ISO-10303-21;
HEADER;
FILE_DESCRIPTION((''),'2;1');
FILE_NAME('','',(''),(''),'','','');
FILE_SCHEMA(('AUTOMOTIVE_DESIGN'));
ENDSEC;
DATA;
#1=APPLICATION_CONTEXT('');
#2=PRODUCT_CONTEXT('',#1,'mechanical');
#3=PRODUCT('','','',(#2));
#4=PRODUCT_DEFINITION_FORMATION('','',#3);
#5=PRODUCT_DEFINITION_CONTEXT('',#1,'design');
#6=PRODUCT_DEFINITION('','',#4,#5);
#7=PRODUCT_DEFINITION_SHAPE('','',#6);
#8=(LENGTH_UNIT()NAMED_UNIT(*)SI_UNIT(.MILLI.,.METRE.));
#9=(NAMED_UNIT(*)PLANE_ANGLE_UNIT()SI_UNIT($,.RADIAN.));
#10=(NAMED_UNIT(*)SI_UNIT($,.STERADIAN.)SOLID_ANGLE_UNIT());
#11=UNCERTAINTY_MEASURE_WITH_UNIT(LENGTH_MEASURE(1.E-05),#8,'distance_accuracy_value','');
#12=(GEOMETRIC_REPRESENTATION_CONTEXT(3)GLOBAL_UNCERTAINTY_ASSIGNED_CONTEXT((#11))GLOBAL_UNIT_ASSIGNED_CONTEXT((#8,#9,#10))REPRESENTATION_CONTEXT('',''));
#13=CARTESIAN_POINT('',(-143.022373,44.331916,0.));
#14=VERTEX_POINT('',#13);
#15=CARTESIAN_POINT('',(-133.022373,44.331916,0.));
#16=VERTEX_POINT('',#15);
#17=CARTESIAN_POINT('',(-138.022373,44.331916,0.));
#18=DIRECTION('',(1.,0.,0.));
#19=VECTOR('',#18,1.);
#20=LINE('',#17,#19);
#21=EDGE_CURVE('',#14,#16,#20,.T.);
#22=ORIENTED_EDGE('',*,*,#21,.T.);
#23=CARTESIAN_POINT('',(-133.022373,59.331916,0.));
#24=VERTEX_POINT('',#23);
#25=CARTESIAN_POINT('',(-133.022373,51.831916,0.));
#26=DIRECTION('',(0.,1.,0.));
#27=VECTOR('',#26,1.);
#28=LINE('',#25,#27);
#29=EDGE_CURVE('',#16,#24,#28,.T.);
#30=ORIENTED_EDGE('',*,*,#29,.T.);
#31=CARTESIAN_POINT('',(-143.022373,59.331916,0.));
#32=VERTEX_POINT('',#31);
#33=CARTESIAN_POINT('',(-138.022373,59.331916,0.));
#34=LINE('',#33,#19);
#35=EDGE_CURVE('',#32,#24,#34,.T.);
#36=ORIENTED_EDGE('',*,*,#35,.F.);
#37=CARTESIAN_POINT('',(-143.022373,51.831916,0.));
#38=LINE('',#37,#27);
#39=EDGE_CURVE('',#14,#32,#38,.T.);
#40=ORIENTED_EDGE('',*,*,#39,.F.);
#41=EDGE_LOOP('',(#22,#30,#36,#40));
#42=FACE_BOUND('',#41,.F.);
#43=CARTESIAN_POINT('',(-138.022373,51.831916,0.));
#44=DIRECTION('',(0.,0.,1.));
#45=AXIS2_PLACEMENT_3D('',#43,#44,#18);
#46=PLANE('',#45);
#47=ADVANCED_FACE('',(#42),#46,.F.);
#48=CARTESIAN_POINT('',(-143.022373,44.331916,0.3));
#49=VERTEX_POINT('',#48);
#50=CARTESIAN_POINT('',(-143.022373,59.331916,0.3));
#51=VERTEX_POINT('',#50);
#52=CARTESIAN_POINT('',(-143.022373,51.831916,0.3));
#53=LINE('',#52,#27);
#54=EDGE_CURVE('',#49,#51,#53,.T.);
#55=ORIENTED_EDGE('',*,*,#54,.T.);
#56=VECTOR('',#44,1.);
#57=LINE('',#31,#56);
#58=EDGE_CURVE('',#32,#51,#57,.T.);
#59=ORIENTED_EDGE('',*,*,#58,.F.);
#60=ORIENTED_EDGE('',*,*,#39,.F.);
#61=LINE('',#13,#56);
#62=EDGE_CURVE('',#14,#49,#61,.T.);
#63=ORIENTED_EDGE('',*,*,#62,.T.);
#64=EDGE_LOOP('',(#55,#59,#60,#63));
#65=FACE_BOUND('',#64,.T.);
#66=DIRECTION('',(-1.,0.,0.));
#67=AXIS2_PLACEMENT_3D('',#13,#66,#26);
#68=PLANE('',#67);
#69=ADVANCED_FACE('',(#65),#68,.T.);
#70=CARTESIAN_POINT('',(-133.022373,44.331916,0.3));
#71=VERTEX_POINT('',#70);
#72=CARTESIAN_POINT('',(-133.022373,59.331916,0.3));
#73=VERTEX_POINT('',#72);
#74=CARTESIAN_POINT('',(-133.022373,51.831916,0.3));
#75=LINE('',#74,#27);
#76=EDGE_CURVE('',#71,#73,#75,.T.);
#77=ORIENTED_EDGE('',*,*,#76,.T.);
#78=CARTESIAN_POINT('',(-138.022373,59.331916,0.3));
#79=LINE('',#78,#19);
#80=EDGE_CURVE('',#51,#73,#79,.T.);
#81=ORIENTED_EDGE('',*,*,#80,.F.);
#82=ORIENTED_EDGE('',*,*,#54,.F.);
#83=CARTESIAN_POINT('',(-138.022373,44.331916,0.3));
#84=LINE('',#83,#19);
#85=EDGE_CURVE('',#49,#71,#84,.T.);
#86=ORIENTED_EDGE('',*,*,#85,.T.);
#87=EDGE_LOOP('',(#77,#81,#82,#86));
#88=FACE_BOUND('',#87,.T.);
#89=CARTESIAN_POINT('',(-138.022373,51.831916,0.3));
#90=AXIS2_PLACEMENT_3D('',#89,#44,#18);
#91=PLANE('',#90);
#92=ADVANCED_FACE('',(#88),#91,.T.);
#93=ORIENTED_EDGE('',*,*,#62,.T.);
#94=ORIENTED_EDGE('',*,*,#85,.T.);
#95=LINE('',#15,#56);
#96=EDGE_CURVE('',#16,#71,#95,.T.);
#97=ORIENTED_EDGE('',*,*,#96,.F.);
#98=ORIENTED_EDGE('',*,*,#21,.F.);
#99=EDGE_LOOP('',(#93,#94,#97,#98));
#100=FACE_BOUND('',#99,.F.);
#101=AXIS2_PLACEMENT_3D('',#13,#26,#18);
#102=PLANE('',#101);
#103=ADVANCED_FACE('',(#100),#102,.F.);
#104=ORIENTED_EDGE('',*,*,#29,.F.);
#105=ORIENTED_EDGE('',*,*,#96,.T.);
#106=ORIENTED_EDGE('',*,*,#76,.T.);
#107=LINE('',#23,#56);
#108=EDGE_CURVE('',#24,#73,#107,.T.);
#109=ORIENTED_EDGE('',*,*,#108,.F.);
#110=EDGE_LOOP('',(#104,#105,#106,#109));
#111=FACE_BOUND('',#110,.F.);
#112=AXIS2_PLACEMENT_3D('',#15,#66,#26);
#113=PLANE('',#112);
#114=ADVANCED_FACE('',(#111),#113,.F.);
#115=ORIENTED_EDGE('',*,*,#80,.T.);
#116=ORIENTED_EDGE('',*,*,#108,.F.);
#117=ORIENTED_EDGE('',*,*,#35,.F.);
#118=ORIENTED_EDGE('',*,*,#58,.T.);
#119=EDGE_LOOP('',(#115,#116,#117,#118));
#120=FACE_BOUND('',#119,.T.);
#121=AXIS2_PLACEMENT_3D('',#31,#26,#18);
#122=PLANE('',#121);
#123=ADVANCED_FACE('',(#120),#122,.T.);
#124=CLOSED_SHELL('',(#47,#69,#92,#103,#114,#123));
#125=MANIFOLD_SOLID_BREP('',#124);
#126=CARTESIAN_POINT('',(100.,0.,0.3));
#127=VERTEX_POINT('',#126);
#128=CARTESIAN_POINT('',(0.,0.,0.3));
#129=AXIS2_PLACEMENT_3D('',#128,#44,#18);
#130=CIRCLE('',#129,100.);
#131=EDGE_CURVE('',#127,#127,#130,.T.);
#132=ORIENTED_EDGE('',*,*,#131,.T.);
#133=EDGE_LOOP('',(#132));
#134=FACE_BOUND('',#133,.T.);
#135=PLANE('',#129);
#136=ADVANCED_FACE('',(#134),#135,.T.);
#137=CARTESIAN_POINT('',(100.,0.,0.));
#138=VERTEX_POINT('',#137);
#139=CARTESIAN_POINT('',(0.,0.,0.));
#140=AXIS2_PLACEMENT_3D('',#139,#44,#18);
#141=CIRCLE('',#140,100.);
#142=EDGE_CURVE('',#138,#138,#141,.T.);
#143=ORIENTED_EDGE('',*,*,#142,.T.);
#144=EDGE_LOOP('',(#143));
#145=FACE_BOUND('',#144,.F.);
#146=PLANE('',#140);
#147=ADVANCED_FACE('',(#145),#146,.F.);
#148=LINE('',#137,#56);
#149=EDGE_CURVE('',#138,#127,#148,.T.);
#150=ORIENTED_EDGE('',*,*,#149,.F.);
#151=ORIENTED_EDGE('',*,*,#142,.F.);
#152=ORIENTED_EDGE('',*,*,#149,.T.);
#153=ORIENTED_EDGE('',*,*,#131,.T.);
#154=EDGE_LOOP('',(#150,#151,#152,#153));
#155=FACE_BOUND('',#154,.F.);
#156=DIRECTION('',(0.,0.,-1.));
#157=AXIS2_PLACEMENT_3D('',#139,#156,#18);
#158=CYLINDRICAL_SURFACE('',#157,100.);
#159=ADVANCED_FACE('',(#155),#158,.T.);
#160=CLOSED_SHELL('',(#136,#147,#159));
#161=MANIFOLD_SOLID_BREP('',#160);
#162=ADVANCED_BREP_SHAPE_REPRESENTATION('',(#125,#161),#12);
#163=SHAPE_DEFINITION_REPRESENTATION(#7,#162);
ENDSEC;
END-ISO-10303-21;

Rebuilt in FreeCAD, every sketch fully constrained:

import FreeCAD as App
import Part
import Sketcher
from FreeCAD import Vector
Q = App.Units.Quantity


def add_polygon(sketch, points):
    """Adds a closed chain of lines whose ends are joined by coincident constraints."""
    first, n = sketch.GeometryCount, len(points)
    for a, b in zip(points, points[1:] + points[:1]):
        sketch.addGeometry(Part.LineSegment(App.Vector(*a, 0), App.Vector(*b, 0)), False)
    for i in range(n):
        sketch.addConstraint(Sketcher.Constraint("Coincident", first + i, 2, first + (i + 1) % n, 1))

doc = App.newDocument("Part")
body = doc.addObject("PartDesign::Body", "Body")
body.AllowCompound = True

sketch1 = body.newObject("Sketcher::SketchObject", "Sketch")
sketch1.AttachmentSupport = (doc.getObject("XY_Plane"), [""])
sketch1.MapMode = "FlatFace"
sketch1.addGeometry(Part.Circle(Vector(0, 0, 0), Vector(0, 0, 1), 100), False)
add_polygon(sketch1, [(-143, 59), (-143, 44), (-133, 44), (-133, 59)])
sketch1.addConstraint([
    Sketcher.Constraint("Vertical", 1),
    Sketcher.Constraint("Horizontal", 2),
    Sketcher.Constraint("Vertical", 3),
    Sketcher.Constraint("Horizontal", 4),
    Sketcher.Constraint("Coincident", 0, 3, -1, 1),
    Sketcher.Constraint("Diameter", 0, Q("200 mm")),
    Sketcher.Constraint("DistanceX", 2, 1, 2, 2, Q("10 mm")),
    Sketcher.Constraint("DistanceY", 1, 2, 1, 1, Q("15 mm")),
    Sketcher.Constraint("DistanceX", 1, 2, -1, 1, Q("143.022373 mm")),
    Sketcher.Constraint("DistanceY", -1, 1, 1, 2, Q("44.331916 mm")),
])
pad1 = body.newObject("PartDesign::Pad", "Pad")
pad1.Profile = sketch1
pad1.Length = 0.3

doc.recompute()
